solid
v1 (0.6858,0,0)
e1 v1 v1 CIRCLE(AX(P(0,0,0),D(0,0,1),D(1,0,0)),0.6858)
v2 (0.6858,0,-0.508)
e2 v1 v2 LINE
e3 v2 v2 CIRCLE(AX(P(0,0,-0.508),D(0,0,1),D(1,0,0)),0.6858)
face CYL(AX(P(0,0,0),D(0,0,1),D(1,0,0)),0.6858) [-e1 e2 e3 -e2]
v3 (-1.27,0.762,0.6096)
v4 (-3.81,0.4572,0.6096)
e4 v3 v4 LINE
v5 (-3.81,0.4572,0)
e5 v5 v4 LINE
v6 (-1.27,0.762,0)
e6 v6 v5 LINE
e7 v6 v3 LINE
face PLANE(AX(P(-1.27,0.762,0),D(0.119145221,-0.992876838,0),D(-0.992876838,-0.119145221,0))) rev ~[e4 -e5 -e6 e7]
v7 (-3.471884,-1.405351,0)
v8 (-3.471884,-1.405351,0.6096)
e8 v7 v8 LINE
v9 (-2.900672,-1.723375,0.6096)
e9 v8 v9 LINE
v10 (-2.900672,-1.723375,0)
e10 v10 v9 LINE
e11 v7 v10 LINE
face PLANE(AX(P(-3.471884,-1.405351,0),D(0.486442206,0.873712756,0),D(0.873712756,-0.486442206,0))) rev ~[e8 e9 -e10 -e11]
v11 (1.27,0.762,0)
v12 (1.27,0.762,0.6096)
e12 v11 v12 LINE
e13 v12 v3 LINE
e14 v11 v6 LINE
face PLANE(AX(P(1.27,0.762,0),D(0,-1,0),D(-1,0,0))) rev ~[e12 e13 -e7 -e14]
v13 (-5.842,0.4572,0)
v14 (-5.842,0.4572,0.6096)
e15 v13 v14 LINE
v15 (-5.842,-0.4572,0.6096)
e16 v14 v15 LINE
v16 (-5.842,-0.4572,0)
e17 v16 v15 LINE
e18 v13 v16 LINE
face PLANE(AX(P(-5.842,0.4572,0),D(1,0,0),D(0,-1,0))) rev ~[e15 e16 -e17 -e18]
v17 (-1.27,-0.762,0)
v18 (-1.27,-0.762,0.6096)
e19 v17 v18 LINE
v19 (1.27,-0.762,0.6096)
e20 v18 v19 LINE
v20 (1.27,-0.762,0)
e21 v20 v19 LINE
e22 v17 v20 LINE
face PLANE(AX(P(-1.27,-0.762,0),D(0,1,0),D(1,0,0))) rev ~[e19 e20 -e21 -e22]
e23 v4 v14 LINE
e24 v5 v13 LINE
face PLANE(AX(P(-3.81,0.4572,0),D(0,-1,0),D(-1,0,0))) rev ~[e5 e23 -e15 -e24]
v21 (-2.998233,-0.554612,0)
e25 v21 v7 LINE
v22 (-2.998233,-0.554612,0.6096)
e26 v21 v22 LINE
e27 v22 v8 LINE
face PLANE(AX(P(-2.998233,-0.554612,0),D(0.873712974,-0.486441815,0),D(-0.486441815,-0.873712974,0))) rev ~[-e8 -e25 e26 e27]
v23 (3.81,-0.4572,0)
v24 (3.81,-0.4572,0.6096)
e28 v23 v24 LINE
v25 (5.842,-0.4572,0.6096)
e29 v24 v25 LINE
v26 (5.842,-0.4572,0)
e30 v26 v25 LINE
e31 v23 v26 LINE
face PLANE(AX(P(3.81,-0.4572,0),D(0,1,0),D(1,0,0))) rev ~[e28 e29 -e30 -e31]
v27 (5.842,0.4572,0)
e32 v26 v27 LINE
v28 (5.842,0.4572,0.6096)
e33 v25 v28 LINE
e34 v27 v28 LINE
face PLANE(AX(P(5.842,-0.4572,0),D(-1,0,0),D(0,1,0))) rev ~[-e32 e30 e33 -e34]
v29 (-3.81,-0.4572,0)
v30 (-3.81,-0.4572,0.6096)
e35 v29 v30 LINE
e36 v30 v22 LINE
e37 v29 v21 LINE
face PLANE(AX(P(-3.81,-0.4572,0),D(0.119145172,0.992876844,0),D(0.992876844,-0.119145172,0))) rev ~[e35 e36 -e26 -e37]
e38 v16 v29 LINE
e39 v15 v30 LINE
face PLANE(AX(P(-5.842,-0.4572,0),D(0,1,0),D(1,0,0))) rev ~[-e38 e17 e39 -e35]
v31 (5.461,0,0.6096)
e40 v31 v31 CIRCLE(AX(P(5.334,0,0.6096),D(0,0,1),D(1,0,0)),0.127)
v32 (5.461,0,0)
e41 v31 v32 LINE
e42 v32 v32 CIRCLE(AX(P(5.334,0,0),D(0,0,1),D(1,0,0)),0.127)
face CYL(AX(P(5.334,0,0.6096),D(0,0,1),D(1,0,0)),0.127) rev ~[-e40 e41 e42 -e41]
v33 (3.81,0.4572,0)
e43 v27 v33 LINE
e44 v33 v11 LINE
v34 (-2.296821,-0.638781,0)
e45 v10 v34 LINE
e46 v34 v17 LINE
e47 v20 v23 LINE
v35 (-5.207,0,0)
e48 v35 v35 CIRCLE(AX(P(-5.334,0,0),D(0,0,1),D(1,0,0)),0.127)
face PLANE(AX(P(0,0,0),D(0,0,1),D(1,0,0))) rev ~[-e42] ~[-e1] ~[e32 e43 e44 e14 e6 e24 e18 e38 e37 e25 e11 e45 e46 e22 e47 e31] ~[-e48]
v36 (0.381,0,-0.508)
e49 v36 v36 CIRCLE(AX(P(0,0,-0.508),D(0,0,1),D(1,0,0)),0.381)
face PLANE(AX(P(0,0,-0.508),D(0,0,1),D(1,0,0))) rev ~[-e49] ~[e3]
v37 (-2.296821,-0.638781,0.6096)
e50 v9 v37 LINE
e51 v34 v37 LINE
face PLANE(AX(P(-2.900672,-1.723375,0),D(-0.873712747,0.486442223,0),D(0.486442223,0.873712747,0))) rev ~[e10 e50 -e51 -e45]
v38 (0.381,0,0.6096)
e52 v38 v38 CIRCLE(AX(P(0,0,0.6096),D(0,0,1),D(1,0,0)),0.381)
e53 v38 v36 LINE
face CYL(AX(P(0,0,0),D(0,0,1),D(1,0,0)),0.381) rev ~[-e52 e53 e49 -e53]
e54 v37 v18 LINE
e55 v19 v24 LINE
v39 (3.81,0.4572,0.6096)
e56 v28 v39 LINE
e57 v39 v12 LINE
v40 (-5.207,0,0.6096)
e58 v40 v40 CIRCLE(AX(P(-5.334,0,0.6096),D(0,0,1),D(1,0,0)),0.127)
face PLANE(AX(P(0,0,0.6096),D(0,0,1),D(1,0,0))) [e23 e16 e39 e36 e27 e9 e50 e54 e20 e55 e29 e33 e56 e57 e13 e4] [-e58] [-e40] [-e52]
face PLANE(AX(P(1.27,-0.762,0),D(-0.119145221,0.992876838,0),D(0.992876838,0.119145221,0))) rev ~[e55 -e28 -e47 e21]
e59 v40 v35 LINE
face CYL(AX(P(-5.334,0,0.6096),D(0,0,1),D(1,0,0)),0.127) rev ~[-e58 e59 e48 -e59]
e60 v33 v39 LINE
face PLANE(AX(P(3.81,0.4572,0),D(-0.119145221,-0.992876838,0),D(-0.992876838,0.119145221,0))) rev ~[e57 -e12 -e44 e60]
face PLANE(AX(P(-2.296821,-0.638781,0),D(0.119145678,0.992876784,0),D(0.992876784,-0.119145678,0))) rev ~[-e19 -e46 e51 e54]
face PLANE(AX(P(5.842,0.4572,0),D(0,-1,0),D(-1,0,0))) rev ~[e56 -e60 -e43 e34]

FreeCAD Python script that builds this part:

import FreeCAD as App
import Part
import Sketcher
from FreeCAD import Vector
Q = App.Units.Quantity

doc = App.newDocument("Part")
body = doc.addObject("PartDesign::Body", "Body")

sketch1 = doc.addObject("Sketcher::SketchObject", "Sketch")
body.addObject(sketch1)
sketch1.AttachmentSupport = (doc.XY_Plane, [""])
sketch1.MapMode = "FlatFace"
sketch1.addGeometry(Part.LineSegment(Vector(1.3, 0.8, 0), Vector(-1.3, 0.8, 0)), False)
sketch1.addGeometry(Part.LineSegment(Vector(-1.3, 0.8, 0), Vector(-3.8, 0.5, 0)), False)
sketch1.addGeometry(Part.LineSegment(Vector(-3.8, 0.5, 0), Vector(-5.8, 0.5, 0)), False)
sketch1.addGeometry(Part.LineSegment(Vector(-5.8, 0.5, 0), Vector(-5.8, -0.5, 0)), False)
sketch1.addGeometry(Part.LineSegment(Vector(-5.8, -0.5, 0), Vector(-3.8, -0.5, 0)), False)
sketch1.addGeometry(Part.LineSegment(Vector(-3.8, -0.5, 0), Vector(-3, -0.6, 0)), False)
sketch1.addGeometry(Part.LineSegment(Vector(-3, -0.6, 0), Vector(-3.5, -1.4, 0)), False)
sketch1.addGeometry(Part.LineSegment(Vector(-3.5, -1.4, 0), Vector(-2.9, -1.7, 0)), False)
sketch1.addGeometry(Part.LineSegment(Vector(-2.9, -1.7, 0), Vector(-2.3, -0.6, 0)), False)
sketch1.addGeometry(Part.LineSegment(Vector(-2.3, -0.6, 0), Vector(-1.3, -0.8, 0)), False)
sketch1.addGeometry(Part.LineSegment(Vector(-1.3, -0.8, 0), Vector(1.3, -0.8, 0)), False)
sketch1.addGeometry(Part.LineSegment(Vector(1.3, -0.8, 0), Vector(3.8, -0.5, 0)), False)
sketch1.addGeometry(Part.LineSegment(Vector(3.8, -0.5, 0), Vector(5.8, -0.5, 0)), False)
sketch1.addGeometry(Part.LineSegment(Vector(5.8, -0.5, 0), Vector(5.8, 0.5, 0)), False)
sketch1.addGeometry(Part.LineSegment(Vector(5.8, 0.5, 0), Vector(3.8, 0.5, 0)), False)
sketch1.addGeometry(Part.LineSegment(Vector(3.8, 0.5, 0), Vector(1.3, 0.8, 0)), False)
sketch1.addConstraint(Sketcher.Constraint("Coincident", 0, 2, 1, 1))
sketch1.addConstraint(Sketcher.Constraint("Coincident", 1, 2, 2, 1))
sketch1.addConstraint(Sketcher.Constraint("Coincident", 2, 2, 3, 1))
sketch1.addConstraint(Sketcher.Constraint("Coincident", 3, 2, 4, 1))
sketch1.addConstraint(Sketcher.Constraint("Coincident", 4, 2, 5, 1))
sketch1.addConstraint(Sketcher.Constraint("Coincident", 5, 2, 6, 1))
sketch1.addConstraint(Sketcher.Constraint("Coincident", 6, 2, 7, 1))
sketch1.addConstraint(Sketcher.Constraint("Coincident", 7, 2, 8, 1))
sketch1.addConstraint(Sketcher.Constraint("Coincident", 8, 2, 9, 1))
sketch1.addConstraint(Sketcher.Constraint("Coincident", 9, 2, 10, 1))
sketch1.addConstraint(Sketcher.Constraint("Coincident", 10, 2, 11, 1))
sketch1.addConstraint(Sketcher.Constraint("Coincident", 11, 2, 12, 1))
sketch1.addConstraint(Sketcher.Constraint("Coincident", 12, 2, 13, 1))
sketch1.addConstraint(Sketcher.Constraint("Coincident", 13, 2, 14, 1))
sketch1.addConstraint(Sketcher.Constraint("Coincident", 14, 2, 15, 1))
sketch1.addConstraint(Sketcher.Constraint("Coincident", 15, 2, 0, 1))
sketch1.addConstraint(Sketcher.Constraint("Horizontal", 0))
sketch1.addConstraint(Sketcher.Constraint("Horizontal", 2))
sketch1.addConstraint(Sketcher.Constraint("Vertical", 3))
sketch1.addConstraint(Sketcher.Constraint("Horizontal", 4))
sketch1.addConstraint(Sketcher.Constraint("Horizontal", 10))
sketch1.addConstraint(Sketcher.Constraint("Horizontal", 12))
sketch1.addConstraint(Sketcher.Constraint("Vertical", 13))
sketch1.addConstraint(Sketcher.Constraint("Horizontal", 14))
sketch1.addConstraint(Sketcher.Constraint("Symmetric", 0, 2, 10, 2, -1, 1))
sketch1.addConstraint(Sketcher.Constraint("Symmetric", 1, 2, 11, 2, -1, 1))
sketch1.addConstraint(Sketcher.Constraint("Symmetric", 3, 2, 13, 2, -1, 1))
sketch1.addConstraint(Sketcher.Constraint("Symmetric", 4, 2, 11, 2, -2))
sketch1.addConstraint(Sketcher.Constraint("Perpendicular", 6, 7))
sketch1.addConstraint(Sketcher.Constraint("Perpendicular", 7, 8))
sketch1.addConstraint(Sketcher.Constraint("Parallel", 5, 9))
sketch1.addConstraint(Sketcher.Constraint("Parallel", 9, 15))
sketch1.addConstraint(Sketcher.Constraint("Vertical", 0, 2, 9, 2))
sketch1.addConstraint(Sketcher.Constraint("Vertical", 11, 2, 14, 2))
sketch1.addConstraint(Sketcher.Constraint("Vertical", 10, 2, 15, 2))
sketch1.addConstraint(Sketcher.Constraint("DistanceX", 0, 2, 0, 1, Q("0.1 in")))
sketch1.addConstraint(Sketcher.Constraint("DistanceX", 2, 2, 2, 1, Q("0.08 in")))
sketch1.addConstraint(Sketcher.Constraint("DistanceX", 1, 2, 0, 2, Q("0.1 in")))
sketch1.addConstraint(Sketcher.Constraint("DistanceY", 3, 2, 3, 1, Q("0.036 in")))
sketch1.addConstraint(Sketcher.Constraint("DistanceY", -1, 1, 0, 2, Q("0.03 in")))
sketch1.addConstraint(Sketcher.Constraint("Distance", 5, 0.817591))
sketch1.addConstraint(Sketcher.Constraint("DistanceY", 6, 2, -1, 1, 1.405351))
sketch1.addConstraint(Sketcher.Constraint("DistanceX", 8, 2, -1, 1, 2.296821))
sketch1.addConstraint(Sketcher.Constraint("DistanceX", 6, 2, 5, 2, 0.473651))
pad1 = doc.addObject("PartDesign::Pad", "Pad")
body.addObject(pad1)
pad1.Profile = sketch1
pad1.Length = Q("0.024 in")

sketch2 = doc.addObject("Sketcher::SketchObject", "Sketch001")
body.addObject(sketch2)
sketch2.AttachmentSupport = (doc.XY_Plane, [""])
sketch2.MapMode = "FlatFace"
sketch2.AttachmentOffset = App.Placement(Vector(0, 0, 0.024 * 25.4), App.Rotation())
sketch2.addGeometry(Part.Circle(Vector(0, 0, 0), Vector(0, 0, 1), 0.38), False)
sketch2.addConstraint(Sketcher.Constraint("Coincident", 0, 3, -1, 1))
sketch2.addConstraint(Sketcher.Constraint("Diameter", 0, Q("0.03 in")))
pocket1 = doc.addObject("PartDesign::Pocket", "Pocket")
body.addObject(pocket1)
pocket1.Profile = sketch2
pocket1.Length = Q("1 in")

sketch3 = doc.addObject("Sketcher::SketchObject", "Sketch002")
body.addObject(sketch3)
sketch3.AttachmentSupport = (doc.XY_Plane, [""])
sketch3.MapMode = "FlatFace"
sketch3.AttachmentOffset = App.Placement(Vector(0, 0, 0.024 * 25.4), App.Rotation())
sketch3.addGeometry(Part.Circle(Vector(-5.33, 0, 0), Vector(0, 0, 1), 0.13), False)
sketch3.addGeometry(Part.Circle(Vector(5.33, 0, 0), Vector(0, 0, 1), 0.13), False)
sketch3.addConstraint(Sketcher.Constraint("Equal", 0, 1))
sketch3.addConstraint(Sketcher.Constraint("Symmetric", 0, 3, 1, 3, -1, 1))
sketch3.addConstraint(Sketcher.Constraint("PointOnObject", 0, 3, -1))
sketch3.addConstraint(Sketcher.Constraint("Diameter", 0, Q("0.01 in")))
sketch3.addConstraint(Sketcher.Constraint("DistanceX", 0, 3, -1, 1, Q("0.21 in")))
pocket2 = doc.addObject("PartDesign::Pocket", "Pocket001")
body.addObject(pocket2)
pocket2.Profile = sketch3
pocket2.Length = Q("0.1 in")

sketch4 = doc.addObject("Sketcher::SketchObject", "Sketch003")
body.addObject(sketch4)
sketch4.AttachmentSupport = (doc.XY_Plane, [""])
sketch4.MapMode = "FlatFace"
sketch4.addGeometry(Part.Circle(Vector(0, 0, 0), Vector(0, 0, 1), 0.69), False)
sketch4.addGeometry(Part.Circle(Vector(0, 0, 0), Vector(0, 0, 1), 0.38), False)
sketch4.addConstraint(Sketcher.Constraint("Coincident", 0, 3, -1, 1))
sketch4.addConstraint(Sketcher.Constraint("Coincident", 1, 3, -1, 1))
sketch4.addConstraint(Sketcher.Constraint("Diameter", 1, Q("0.03 in")))
sketch4.addConstraint(Sketcher.Constraint("Diameter", 0, Q("0.054 in")))
pad2 = doc.addObject("PartDesign::Pad", "Pad001")
body.addObject(pad2)
pad2.Profile = sketch4
pad2.Length = Q("0.02 in")
pad2.Reversed = True

doc.recompute()
